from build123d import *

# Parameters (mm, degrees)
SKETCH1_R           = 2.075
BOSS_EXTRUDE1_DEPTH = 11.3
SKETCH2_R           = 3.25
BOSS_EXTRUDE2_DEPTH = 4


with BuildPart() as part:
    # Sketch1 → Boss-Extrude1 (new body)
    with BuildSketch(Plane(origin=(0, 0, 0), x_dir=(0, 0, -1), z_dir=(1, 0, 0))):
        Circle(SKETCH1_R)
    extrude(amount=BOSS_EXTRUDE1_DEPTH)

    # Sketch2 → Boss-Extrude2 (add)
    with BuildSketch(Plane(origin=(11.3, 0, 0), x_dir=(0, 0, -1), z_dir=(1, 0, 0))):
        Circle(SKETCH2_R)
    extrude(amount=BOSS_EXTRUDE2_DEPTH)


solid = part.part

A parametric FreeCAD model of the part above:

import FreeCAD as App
import Part
import Sketcher

doc = App.newDocument("Part")
params = doc.addObject("Spreadsheet::Sheet", "Params")
for row, (alias, value) in enumerate([
    ("sketch1_diameter", "4.15 mm"),
    ("pad1_length", "11.3 mm"),
    ("sketch2_diameter", "6.5 mm"),
    ("pad2_length", "4 mm"),
], start=1):
    params.set(f"A{row}", alias)
    params.set(f"B{row}", "=" + value)
    params.setAlias(f"B{row}", alias)

body = doc.addObject("PartDesign::Body", "Body")

# Sketch on YZ plane
sketch1 = body.newObject("Sketcher::SketchObject", "Sketch")
sketch1.AttachmentSupport = (doc.getObject("YZ_Plane"), [""])
sketch1.MapMode = "FlatFace"
sketch1.addGeometry(Part.Circle(App.Vector(0, 0, 0), App.Vector(0, 0, 1), 2.1), False)
sketch1.addConstraint([
    Sketcher.Constraint("Coincident", 0, 3, -1, 1),
    Sketcher.Constraint("Diameter", 0, 4.15),
])
sketch1.setExpression("Constraints[1]", "Params.sketch1_diameter")
pad1 = body.newObject("PartDesign::Pad", "Pad")
pad1.Profile = sketch1
pad1.setExpression("Length", "Params.pad1_length")

# Sketch on YZ plane
sketch2 = body.newObject("Sketcher::SketchObject", "Sketch001")
sketch2.AttachmentSupport = (doc.getObject("YZ_Plane"), [""])
sketch2.MapMode = "FlatFace"
sketch2.AttachmentOffset = App.Placement(App.Vector(0, 0, 11.3), App.Rotation())
sketch2.addGeometry(Part.Circle(App.Vector(0, 0, 0), App.Vector(0, 0, 1), 3.2), False)
sketch2.addConstraint([
    Sketcher.Constraint("Coincident", 0, 3, -1, 1),
    Sketcher.Constraint("Diameter", 0, 6.5),
])
sketch2.setExpression("Constraints[1]", "Params.sketch2_diameter")
pad2 = body.newObject("PartDesign::Pad", "Pad001")
pad2.Profile = sketch2
pad2.setExpression("Length", "Params.pad2_length")

doc.recompute()
